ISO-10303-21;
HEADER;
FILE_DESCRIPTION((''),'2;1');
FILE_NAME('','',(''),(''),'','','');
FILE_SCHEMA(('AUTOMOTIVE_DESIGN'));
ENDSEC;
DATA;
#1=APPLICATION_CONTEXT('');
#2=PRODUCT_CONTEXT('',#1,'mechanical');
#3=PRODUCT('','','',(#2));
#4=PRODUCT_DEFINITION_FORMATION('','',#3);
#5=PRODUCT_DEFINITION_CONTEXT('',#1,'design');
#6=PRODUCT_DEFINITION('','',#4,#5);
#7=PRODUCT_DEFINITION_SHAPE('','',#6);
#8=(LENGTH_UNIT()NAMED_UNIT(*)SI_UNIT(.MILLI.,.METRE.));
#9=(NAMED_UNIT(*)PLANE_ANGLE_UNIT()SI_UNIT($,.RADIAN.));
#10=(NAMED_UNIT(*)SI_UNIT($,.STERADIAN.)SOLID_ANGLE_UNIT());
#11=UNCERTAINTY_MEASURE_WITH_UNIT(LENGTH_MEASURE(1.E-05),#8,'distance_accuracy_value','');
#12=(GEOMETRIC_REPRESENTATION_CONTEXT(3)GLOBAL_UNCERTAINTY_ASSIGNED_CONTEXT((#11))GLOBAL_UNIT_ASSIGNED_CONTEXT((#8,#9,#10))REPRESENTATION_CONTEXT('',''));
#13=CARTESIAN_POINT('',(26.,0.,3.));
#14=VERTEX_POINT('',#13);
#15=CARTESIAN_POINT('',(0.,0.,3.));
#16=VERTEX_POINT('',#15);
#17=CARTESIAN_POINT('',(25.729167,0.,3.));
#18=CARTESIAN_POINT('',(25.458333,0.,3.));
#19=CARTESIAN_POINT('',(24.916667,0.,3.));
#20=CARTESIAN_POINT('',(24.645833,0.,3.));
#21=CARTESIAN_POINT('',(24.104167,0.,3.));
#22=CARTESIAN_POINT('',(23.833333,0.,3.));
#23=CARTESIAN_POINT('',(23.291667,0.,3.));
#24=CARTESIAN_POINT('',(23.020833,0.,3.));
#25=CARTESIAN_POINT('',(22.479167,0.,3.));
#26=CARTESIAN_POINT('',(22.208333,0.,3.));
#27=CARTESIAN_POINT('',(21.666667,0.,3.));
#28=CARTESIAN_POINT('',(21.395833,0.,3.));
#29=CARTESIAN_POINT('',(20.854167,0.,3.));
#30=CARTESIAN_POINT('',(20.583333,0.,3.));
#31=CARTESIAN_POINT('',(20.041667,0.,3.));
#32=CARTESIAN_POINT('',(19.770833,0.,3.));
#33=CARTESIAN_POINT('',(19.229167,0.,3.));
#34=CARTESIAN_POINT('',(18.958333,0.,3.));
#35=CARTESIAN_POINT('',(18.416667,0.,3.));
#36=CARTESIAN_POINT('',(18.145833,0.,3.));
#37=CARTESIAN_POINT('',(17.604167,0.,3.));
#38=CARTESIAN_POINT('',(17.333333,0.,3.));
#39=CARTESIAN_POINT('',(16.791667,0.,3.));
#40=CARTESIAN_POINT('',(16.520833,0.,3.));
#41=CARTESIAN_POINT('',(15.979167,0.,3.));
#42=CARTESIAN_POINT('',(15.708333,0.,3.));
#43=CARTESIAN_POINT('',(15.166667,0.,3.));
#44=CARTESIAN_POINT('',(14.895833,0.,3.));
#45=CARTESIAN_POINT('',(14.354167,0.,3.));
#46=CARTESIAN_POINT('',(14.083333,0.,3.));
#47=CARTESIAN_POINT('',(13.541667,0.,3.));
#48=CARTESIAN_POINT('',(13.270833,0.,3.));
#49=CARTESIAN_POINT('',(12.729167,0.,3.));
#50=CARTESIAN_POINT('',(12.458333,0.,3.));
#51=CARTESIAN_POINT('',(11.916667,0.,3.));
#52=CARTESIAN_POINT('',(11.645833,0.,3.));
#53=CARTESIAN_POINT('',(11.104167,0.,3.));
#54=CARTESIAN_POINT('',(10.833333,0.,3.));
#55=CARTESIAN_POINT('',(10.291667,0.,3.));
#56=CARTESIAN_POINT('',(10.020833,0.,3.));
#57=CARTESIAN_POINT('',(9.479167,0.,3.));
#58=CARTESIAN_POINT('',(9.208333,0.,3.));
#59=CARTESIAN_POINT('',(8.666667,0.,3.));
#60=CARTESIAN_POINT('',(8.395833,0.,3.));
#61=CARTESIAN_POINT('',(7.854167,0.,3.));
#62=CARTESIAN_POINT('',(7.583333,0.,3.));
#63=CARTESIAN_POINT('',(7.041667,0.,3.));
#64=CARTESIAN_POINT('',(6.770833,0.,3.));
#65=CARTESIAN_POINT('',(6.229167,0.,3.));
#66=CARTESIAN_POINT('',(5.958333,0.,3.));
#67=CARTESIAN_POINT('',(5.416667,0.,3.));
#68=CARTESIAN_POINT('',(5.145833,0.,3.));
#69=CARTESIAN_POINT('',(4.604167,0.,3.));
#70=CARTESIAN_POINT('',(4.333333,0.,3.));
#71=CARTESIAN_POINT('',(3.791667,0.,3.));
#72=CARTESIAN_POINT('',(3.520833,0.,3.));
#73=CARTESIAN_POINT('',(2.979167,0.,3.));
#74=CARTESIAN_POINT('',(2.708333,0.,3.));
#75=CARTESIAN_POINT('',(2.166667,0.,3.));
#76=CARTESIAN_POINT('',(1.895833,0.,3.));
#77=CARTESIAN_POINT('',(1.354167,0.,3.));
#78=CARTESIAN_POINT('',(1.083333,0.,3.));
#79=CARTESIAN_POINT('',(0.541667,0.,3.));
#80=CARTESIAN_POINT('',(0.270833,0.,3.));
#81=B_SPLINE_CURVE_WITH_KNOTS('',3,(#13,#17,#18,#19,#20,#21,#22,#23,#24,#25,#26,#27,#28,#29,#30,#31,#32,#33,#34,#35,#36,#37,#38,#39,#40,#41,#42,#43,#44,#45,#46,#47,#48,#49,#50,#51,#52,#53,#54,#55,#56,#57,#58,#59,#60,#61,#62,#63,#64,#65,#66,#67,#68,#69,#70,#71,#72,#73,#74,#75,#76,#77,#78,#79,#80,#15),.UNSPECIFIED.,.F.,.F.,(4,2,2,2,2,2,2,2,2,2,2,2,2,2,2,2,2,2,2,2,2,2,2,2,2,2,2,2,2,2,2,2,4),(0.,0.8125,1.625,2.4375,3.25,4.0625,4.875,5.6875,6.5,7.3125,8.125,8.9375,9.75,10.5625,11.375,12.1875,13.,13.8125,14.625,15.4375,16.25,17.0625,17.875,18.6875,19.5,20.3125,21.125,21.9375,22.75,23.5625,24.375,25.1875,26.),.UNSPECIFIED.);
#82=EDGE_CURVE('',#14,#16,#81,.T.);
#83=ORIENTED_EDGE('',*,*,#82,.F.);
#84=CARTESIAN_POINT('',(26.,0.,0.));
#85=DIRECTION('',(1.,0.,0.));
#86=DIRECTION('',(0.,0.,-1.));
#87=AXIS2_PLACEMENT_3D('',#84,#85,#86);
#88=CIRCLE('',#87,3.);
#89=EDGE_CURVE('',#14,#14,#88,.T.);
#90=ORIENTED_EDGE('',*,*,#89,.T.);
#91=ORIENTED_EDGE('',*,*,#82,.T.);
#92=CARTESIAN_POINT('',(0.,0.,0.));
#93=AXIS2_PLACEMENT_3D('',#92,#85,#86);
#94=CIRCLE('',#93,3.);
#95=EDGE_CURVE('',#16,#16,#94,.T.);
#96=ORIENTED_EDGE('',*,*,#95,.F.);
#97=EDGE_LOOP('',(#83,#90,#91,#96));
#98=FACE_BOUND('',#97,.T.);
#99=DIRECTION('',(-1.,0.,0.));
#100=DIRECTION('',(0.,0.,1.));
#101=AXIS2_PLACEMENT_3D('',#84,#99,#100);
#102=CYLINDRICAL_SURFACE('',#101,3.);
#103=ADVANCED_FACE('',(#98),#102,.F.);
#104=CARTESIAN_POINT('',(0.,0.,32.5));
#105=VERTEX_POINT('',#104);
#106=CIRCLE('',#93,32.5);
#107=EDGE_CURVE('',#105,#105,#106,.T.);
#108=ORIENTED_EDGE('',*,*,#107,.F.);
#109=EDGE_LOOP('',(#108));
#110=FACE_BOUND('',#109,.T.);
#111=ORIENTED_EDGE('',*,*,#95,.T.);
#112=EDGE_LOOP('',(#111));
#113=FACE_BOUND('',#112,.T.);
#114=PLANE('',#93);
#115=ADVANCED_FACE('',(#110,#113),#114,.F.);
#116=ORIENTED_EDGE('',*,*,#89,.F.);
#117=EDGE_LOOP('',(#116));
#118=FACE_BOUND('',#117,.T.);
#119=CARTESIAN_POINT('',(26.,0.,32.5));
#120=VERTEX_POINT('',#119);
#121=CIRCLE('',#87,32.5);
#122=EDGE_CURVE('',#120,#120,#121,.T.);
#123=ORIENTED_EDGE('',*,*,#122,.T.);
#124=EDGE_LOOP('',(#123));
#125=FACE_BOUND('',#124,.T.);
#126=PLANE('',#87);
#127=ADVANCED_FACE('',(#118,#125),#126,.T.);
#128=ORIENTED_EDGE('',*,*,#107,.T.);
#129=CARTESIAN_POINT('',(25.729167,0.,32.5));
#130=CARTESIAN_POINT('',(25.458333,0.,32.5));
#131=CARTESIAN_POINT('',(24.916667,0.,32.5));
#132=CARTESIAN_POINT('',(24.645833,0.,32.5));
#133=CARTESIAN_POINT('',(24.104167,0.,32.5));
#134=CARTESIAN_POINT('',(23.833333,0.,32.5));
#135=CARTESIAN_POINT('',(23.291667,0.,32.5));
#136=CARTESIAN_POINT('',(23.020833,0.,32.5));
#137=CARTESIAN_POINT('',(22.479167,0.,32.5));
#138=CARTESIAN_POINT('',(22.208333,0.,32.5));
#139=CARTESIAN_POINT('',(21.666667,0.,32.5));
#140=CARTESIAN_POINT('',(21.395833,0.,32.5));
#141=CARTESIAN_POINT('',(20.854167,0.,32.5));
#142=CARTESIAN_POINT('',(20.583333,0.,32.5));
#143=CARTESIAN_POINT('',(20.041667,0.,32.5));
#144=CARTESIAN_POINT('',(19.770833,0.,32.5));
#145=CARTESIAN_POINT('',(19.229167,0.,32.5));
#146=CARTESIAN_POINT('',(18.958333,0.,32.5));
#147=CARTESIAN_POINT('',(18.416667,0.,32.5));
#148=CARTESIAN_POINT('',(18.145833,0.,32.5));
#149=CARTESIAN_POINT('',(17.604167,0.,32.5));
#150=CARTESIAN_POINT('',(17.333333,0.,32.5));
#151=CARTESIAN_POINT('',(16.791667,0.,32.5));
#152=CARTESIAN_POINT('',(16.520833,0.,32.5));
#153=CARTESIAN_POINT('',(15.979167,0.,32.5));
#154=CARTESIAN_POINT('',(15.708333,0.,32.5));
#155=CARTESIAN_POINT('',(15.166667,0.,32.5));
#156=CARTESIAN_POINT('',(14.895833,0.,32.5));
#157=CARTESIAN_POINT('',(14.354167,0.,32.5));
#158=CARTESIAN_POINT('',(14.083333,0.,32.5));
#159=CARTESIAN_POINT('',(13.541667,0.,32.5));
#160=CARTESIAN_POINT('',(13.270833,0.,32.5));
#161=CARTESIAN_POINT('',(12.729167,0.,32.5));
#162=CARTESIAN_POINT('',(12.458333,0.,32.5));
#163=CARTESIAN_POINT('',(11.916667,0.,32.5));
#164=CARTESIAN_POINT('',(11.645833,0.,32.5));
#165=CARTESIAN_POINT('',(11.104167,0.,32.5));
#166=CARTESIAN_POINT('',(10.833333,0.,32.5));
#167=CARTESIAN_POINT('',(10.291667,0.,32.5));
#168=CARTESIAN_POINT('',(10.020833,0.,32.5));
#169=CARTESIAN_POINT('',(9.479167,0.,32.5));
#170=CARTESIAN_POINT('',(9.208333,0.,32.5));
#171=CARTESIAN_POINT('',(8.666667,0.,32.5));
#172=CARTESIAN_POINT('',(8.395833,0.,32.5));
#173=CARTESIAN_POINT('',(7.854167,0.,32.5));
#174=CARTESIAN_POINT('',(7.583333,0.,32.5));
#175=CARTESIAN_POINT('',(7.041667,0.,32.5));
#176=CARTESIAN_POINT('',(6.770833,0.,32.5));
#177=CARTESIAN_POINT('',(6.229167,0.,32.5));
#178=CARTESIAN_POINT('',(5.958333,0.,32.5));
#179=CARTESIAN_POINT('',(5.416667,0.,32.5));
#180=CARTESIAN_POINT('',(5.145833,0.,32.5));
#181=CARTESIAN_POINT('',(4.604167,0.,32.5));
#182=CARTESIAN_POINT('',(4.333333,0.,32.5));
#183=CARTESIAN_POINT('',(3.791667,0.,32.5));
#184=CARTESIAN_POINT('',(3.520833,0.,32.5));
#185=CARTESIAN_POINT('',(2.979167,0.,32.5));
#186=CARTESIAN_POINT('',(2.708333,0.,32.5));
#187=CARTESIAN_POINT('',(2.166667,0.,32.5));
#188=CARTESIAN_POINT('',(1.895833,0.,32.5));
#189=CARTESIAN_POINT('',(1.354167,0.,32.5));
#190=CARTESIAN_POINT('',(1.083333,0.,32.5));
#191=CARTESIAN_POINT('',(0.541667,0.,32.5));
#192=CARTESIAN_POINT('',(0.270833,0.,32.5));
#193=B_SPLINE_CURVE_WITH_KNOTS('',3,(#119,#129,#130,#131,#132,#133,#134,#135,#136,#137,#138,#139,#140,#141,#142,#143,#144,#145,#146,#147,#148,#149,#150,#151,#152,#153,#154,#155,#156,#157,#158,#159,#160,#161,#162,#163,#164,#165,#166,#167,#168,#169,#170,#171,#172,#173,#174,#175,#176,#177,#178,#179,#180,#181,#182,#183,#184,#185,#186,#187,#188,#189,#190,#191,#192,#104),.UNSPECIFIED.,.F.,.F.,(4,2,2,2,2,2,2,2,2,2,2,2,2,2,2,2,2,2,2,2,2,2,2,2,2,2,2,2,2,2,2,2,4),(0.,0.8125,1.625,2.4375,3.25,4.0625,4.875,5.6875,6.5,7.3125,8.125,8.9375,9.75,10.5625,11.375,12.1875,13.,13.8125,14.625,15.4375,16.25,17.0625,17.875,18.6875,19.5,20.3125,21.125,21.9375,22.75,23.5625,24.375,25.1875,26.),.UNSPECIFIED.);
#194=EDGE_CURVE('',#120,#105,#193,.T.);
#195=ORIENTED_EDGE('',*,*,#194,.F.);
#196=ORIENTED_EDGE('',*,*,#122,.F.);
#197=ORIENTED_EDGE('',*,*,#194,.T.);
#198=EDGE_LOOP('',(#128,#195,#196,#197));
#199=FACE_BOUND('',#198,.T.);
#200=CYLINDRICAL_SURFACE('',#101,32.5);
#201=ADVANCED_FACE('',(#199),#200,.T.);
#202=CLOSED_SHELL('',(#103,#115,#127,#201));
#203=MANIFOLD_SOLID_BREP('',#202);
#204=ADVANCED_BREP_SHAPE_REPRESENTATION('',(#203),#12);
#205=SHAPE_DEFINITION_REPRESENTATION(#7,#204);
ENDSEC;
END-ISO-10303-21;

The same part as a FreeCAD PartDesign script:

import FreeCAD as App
import Part
import Sketcher

V = App.Vector

doc = App.newDocument("Part")
body = doc.addObject("PartDesign::Body", "Body")

sketch1 = body.newObject("Sketcher::SketchObject", "Sketch")
sketch1.AttachmentSupport = (doc.getObject("YZ_Plane"), [""])
sketch1.MapMode = "FlatFace"
sketch1.addGeometry(Part.Circle(V(0, 0, 0), V(0, 0, 1), 32.5), False)
sketch1.addGeometry(Part.Circle(V(0, 0, 0), V(0, 0, 1), 3), False)
sketch1.addConstraint(Sketcher.Constraint("Coincident", 0, 3, -1, 1))
sketch1.addConstraint(Sketcher.Constraint("Coincident", 1, 3, -1, 1))
sketch1.addConstraint(Sketcher.Constraint("Diameter", 0, 65.0))
sketch1.addConstraint(Sketcher.Constraint("Diameter", 1, 6.0))
pad1 = body.newObject("PartDesign::Pad", "Pad")
pad1.Profile = sketch1
pad1.Length = 26

doc.recompute()
